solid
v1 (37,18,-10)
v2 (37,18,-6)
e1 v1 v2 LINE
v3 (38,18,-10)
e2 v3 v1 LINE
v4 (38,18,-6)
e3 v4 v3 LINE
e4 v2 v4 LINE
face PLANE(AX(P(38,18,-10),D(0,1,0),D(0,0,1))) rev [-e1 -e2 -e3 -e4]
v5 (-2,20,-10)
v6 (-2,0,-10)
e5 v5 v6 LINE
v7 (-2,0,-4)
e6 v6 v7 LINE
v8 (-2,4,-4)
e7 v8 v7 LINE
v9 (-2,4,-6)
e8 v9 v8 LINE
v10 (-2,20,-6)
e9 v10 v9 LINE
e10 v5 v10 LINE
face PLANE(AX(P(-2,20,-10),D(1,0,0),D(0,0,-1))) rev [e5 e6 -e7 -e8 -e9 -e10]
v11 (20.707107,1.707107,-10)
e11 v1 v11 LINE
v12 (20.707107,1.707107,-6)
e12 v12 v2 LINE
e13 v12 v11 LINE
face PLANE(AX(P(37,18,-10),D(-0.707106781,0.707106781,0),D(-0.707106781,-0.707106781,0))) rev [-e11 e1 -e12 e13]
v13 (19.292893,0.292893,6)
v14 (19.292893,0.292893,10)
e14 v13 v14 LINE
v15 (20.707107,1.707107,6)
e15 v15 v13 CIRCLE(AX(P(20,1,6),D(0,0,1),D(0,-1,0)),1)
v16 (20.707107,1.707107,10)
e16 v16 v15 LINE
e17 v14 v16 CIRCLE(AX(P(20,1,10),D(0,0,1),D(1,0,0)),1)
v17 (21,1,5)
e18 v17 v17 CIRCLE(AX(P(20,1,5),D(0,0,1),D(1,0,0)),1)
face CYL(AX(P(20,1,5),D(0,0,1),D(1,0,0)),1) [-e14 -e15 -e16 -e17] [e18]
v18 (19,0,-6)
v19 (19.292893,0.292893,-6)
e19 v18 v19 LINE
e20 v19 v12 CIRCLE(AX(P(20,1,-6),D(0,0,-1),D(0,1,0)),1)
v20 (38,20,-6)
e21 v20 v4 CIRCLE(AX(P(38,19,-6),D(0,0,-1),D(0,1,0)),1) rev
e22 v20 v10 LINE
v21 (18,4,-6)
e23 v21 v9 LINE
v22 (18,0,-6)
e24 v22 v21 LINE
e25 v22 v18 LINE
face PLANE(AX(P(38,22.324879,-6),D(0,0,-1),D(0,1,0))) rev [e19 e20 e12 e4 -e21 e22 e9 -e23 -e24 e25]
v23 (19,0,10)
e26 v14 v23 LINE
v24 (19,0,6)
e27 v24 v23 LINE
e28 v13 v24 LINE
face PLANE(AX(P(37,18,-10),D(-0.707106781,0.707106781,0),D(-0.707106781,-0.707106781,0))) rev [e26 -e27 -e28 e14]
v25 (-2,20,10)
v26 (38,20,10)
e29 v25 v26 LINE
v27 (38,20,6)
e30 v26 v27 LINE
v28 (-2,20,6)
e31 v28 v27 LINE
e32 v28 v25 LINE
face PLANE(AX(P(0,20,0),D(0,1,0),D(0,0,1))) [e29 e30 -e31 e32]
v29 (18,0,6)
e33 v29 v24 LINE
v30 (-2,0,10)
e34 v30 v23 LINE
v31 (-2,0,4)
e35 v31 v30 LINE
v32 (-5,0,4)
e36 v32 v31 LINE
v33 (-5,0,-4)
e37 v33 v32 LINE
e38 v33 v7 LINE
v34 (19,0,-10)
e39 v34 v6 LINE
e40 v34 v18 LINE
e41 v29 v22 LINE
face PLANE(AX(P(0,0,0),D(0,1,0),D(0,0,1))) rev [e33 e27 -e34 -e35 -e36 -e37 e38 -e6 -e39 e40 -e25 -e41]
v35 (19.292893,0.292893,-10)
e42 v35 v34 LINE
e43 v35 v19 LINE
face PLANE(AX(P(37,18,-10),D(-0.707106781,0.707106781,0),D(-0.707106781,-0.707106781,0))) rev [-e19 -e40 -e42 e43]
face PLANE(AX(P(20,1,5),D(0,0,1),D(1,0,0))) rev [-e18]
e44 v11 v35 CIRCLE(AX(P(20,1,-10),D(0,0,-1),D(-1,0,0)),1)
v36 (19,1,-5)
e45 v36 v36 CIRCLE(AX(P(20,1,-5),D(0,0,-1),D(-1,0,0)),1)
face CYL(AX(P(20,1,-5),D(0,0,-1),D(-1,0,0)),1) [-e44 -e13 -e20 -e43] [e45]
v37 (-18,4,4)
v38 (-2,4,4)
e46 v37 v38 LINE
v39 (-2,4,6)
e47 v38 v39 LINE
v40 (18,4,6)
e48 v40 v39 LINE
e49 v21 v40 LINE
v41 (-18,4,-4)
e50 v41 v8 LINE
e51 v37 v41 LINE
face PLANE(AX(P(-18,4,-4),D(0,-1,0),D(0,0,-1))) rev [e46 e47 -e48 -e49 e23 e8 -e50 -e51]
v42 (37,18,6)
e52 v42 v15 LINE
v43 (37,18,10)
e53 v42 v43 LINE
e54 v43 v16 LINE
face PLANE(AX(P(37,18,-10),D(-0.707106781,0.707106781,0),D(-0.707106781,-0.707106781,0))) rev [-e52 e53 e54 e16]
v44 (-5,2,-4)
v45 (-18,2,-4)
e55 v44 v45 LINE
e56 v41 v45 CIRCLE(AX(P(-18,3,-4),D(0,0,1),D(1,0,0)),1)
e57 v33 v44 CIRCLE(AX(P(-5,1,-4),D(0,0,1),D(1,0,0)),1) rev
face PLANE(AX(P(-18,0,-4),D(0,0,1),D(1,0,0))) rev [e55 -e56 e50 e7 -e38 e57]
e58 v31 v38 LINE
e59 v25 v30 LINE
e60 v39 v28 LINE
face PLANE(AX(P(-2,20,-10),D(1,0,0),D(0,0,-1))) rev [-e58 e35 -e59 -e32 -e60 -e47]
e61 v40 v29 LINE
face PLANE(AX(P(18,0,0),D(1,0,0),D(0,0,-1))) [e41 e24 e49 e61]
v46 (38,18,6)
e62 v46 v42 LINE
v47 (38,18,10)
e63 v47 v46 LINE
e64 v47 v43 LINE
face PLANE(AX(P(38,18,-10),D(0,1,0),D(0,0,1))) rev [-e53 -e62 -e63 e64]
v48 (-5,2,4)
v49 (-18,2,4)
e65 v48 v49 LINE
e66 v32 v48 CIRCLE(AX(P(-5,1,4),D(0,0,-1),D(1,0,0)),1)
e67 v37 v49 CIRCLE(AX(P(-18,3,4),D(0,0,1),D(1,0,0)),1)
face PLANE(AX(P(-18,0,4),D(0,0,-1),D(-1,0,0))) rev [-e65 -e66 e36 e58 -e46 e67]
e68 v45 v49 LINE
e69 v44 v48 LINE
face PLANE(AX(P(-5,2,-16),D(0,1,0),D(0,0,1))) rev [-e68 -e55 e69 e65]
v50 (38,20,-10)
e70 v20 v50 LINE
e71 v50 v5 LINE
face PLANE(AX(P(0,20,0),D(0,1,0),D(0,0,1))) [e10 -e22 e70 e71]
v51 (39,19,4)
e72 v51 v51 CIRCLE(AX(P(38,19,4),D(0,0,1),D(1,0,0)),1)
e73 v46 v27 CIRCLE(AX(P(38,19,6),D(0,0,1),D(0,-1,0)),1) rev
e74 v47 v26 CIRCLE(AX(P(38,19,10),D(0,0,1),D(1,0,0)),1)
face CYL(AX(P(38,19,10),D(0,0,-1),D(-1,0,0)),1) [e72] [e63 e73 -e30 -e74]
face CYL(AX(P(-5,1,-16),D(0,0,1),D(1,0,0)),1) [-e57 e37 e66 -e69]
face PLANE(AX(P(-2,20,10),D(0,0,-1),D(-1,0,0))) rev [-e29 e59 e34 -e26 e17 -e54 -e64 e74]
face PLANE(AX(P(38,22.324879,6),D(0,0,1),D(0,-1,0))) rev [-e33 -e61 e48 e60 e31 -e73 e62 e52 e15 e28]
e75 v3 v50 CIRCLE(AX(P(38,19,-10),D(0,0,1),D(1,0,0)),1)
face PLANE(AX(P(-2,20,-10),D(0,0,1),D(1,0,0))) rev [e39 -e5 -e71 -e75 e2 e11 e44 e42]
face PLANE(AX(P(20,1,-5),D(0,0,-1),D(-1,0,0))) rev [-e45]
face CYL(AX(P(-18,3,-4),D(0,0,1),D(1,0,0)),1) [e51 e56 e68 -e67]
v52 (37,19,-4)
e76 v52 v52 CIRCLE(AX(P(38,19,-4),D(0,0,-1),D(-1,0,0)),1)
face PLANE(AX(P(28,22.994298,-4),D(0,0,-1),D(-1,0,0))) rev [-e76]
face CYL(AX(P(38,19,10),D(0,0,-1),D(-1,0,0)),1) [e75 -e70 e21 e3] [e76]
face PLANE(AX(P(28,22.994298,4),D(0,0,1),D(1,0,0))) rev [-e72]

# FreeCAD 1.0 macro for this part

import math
import FreeCAD as App
import Part
import Sketcher
Q = App.Units.Quantity

doc = App.newDocument("Part")
body = doc.addObject("PartDesign::Body", "Body")

# Sketch on XZ plane
sketch1 = body.newObject("Sketcher::SketchObject", "Sketch")
sketch1.AttachmentSupport = (doc.getObject("XZ_Plane"), [""])
sketch1.MapMode = "FlatFace"
sketch1.addGeometry([
    Part.LineSegment(App.Vector(-2, -10, 0), App.Vector(-2, 10, 0)),
    Part.LineSegment(App.Vector(-2, 10, 0), App.Vector(38, 10, 0)),
    Part.LineSegment(App.Vector(38, 10, 0), App.Vector(38, -10, 0)),
    Part.LineSegment(App.Vector(38, -10, 0), App.Vector(-2, -10, 0)),
], False)
sketch1.addConstraint([
    Sketcher.Constraint("Coincident", 0, 2, 1, 1),
    Sketcher.Constraint("Coincident", 1, 2, 2, 1),
    Sketcher.Constraint("Coincident", 2, 2, 3, 1),
    Sketcher.Constraint("Coincident", 3, 2, 0, 1),
    Sketcher.Constraint("Vertical", 0),
    Sketcher.Constraint("Horizontal", 1),
    Sketcher.Constraint("Vertical", 2),
    Sketcher.Constraint("Horizontal", 3),
    Sketcher.Constraint("DistanceX", 1, 1, 1, 2, 40.0),
    Sketcher.Constraint("DistanceY", 0, 1, 0, 2, 20.0),
    Sketcher.Constraint("DistanceX", 0, 2, -1, 1, 2.0),
    Sketcher.Constraint("DistanceY", -1, 1, 0, 2, 10.0),
])
pad1 = body.newObject("PartDesign::Pad", "Pad")
pad1.Profile = sketch1
pad1.Length = 20
pad1.Reversed = True

# Sketch on YZ plane
sketch2 = body.newObject("Sketcher::SketchObject", "Sketch001")
sketch2.AttachmentSupport = (doc.getObject("YZ_Plane"), [""])
sketch2.MapMode = "FlatFace"
sketch2.AttachmentOffset = App.Placement(App.Vector(0, 0, -2), App.Rotation())
sketch2.addGeometry([
    Part.LineSegment(App.Vector(4, -4, 0), App.Vector(0, -4, 0)),
    Part.LineSegment(App.Vector(0, -4, 0), App.Vector(0, 4, 0)),
    Part.LineSegment(App.Vector(0, 4, 0), App.Vector(4, 4, 0)),
    Part.LineSegment(App.Vector(4, 4, 0), App.Vector(4, -4, 0)),
], False)
sketch2.addConstraint([
    Sketcher.Constraint("Coincident", 0, 2, 1, 1),
    Sketcher.Constraint("Coincident", 1, 2, 2, 1),
    Sketcher.Constraint("Coincident", 2, 2, 3, 1),
    Sketcher.Constraint("Coincident", 3, 2, 0, 1),
    Sketcher.Constraint("Horizontal", 0),
    Sketcher.Constraint("Vertical", 1),
    Sketcher.Constraint("Horizontal", 2),
    Sketcher.Constraint("Vertical", 3),
    Sketcher.Constraint("Symmetric", 0, 2, 1, 2, -1, 1),
    Sketcher.Constraint("DistanceX", 0, 2, 0, 1, 4.0),
    Sketcher.Constraint("DistanceY", 1, 1, 1, 2, 8.0),
])
pad2 = body.newObject("PartDesign::Pad", "Pad001")
pad2.Profile = sketch2
pad2.Length = 16
pad2.Reversed = True

# Sketch on YZ plane
sketch3 = body.newObject("Sketcher::SketchObject", "Sketch002")
sketch3.AttachmentSupport = (doc.getObject("YZ_Plane"), [""])
sketch3.MapMode = "FlatFace"
sketch3.AttachmentOffset = App.Placement(App.Vector(0, 0, -2), App.Rotation())
sketch3.addGeometry([
    Part.LineSegment(App.Vector(22, -6, 0), App.Vector(4, -6, 0)),
    Part.LineSegment(App.Vector(4, -6, 0), App.Vector(4, 6, 0)),
    Part.LineSegment(App.Vector(4, 6, 0), App.Vector(22, 6, 0)),
    Part.LineSegment(App.Vector(22, 6, 0), App.Vector(22, -6, 0)),
], False)
sketch3.addConstraint([
    Sketcher.Constraint("Coincident", 0, 2, 1, 1),
    Sketcher.Constraint("Coincident", 1, 2, 2, 1),
    Sketcher.Constraint("Coincident", 2, 2, 3, 1),
    Sketcher.Constraint("Coincident", 3, 2, 0, 1),
    Sketcher.Constraint("Horizontal", 0),
    Sketcher.Constraint("Vertical", 1),
    Sketcher.Constraint("Horizontal", 2),
    Sketcher.Constraint("Vertical", 3),
    Sketcher.Constraint("DistanceY", 1, 1, 1, 2, 12.0),
    Sketcher.Constraint("DistanceX", -1, 1, 0, 2, 4.0),
    Sketcher.Constraint("DistanceY", 0, 2, -1, 1, 6.0),
    Sketcher.Constraint("DistanceX", 0, 2, 0, 1, 18.324879),
])
pocket1 = body.newObject("PartDesign::Pocket", "Pocket")
pocket1.Profile = sketch3
pocket1.Type = "ThroughAll"
pocket1.Reversed = True

# Sketch on YZ plane
sketch4 = body.newObject("Sketcher::SketchObject", "Sketch003")
sketch4.AttachmentSupport = (doc.getObject("YZ_Plane"), [""])
sketch4.MapMode = "FlatFace"
sketch4.AttachmentOffset = App.Placement(App.Vector(0, 0, 38), App.Rotation())
sketch4.addGeometry([
    Part.LineSegment(App.Vector(4, 6, 0), App.Vector(0, 6, 0)),
    Part.LineSegment(App.Vector(0, 6, 0), App.Vector(0, -6, 0)),
    Part.LineSegment(App.Vector(0, -6, 0), App.Vector(4, -6, 0)),
    Part.LineSegment(App.Vector(4, -6, 0), App.Vector(4, 6, 0)),
], False)
sketch4.addConstraint([
    Sketcher.Constraint("Coincident", 0, 2, 1, 1),
    Sketcher.Constraint("Coincident", 1, 2, 2, 1),
    Sketcher.Constraint("Coincident", 2, 2, 3, 1),
    Sketcher.Constraint("Coincident", 3, 2, 0, 1),
    Sketcher.Constraint("Horizontal", 0),
    Sketcher.Constraint("Vertical", 1),
    Sketcher.Constraint("Horizontal", 2),
    Sketcher.Constraint("Vertical", 3),
    Sketcher.Constraint("Symmetric", 0, 2, 1, 2, -1, 1),
    Sketcher.Constraint("DistanceX", 0, 2, 0, 1, 4.0),
    Sketcher.Constraint("DistanceY", 1, 2, 1, 1, 12.0),
])
pocket2 = body.newObject("PartDesign::Pocket", "Pocket001")
pocket2.Profile = sketch4
pocket2.Length = 20

# Sketch on XY plane
sketch5 = body.newObject("Sketcher::SketchObject", "Sketch004")
sketch5.AttachmentSupport = (doc.getObject("XY_Plane"), [""])
sketch5.MapMode = "FlatFace"
sketch5.addGeometry([
    Part.Circle(App.Vector(38, 19, 0), App.Vector(0, 0, 1), 1),
    Part.Circle(App.Vector(38, 1, 0), App.Vector(0, 0, 1), 1),
], False)
sketch5.addConstraint([
    Sketcher.Constraint("Equal", 0, 1),
    Sketcher.Constraint("Vertical", 0, 3, 1, 3),
    Sketcher.Constraint("Diameter", 0, 2.0),
    Sketcher.Constraint("DistanceX", -1, 1, 0, 3, 38.0),
    Sketcher.Constraint("DistanceY", -1, 1, 0, 3, 19.0),
    Sketcher.Constraint("DistanceY", -1, 1, 1, 3, 1.0),
])
pad3 = body.newObject("PartDesign::Pad", "Pad002")
pad3.Profile = sketch5
pad3.Length = 20
pad3.Midplane = True

# Sketch on YZ plane
sketch6 = body.newObject("Sketcher::SketchObject", "Sketch005")
sketch6.AttachmentSupport = (doc.getObject("YZ_Plane"), [""])
sketch6.MapMode = "FlatFace"
sketch6.AttachmentOffset = App.Placement(App.Vector(0, 0, 38), App.Rotation())
sketch6.addGeometry([
    Part.LineSegment(App.Vector(23, 4, 0), App.Vector(-2, 4, 0)),
    Part.LineSegment(App.Vector(-2, 4, 0), App.Vector(-2, -4, 0)),
    Part.LineSegment(App.Vector(-2, -4, 0), App.Vector(23, -4, 0)),
    Part.LineSegment(App.Vector(23, -4, 0), App.Vector(23, 4, 0)),
], False)
sketch6.addConstraint([
    Sketcher.Constraint("Coincident", 0, 2, 1, 1),
    Sketcher.Constraint("Coincident", 1, 2, 2, 1),
    Sketcher.Constraint("Coincident", 2, 2, 3, 1),
    Sketcher.Constraint("Coincident", 3, 2, 0, 1),
    Sketcher.Constraint("Horizontal", 0),
    Sketcher.Constraint("Vertical", 1),
    Sketcher.Constraint("Horizontal", 2),
    Sketcher.Constraint("Vertical", 3),
    Sketcher.Constraint("DistanceY", 1, 2, 1, 1, 8.0),
    Sketcher.Constraint("DistanceY", -1, 1, 0, 2, 4.0),
    Sketcher.Constraint("DistanceX", 0, 2, 0, 1, 25.038569),
    Sketcher.Constraint("DistanceX", 0, 2, -1, 1, 2.044271),
])
pocket3 = body.newObject("PartDesign::Pocket", "Pocket002")
pocket3.Profile = sketch6
pocket3.Length = 20
pocket3.Midplane = True

# Sketch on XY plane
sketch7 = body.newObject("Sketcher::SketchObject", "Sketch006")
sketch7.AttachmentSupport = (doc.getObject("XY_Plane"), [""])
sketch7.MapMode = "FlatFace"
sketch7.AttachmentOffset = App.Placement(App.Vector(0, 0, 4), App.Rotation())
sketch7.addGeometry([
    Part.LineSegment(App.Vector(-5, 2, 0), App.Vector(-18.5, 2, 0)),
    Part.LineSegment(App.Vector(-18.5, 2, 0), App.Vector(-18.5, 0, 0)),
    Part.LineSegment(App.Vector(-18.5, 0, 0), App.Vector(-5, 0, 0)),
    Part.ArcOfCircle(Part.Circle(App.Vector(-5, 1, 0), App.Vector(0, 0, 1), 1), math.radians(90), math.radians(270)),
], False)
sketch7.addConstraint([
    Sketcher.Constraint("Coincident", 0, 2, 1, 1),
    Sketcher.Constraint("Coincident", 1, 2, 2, 1),
    Sketcher.Constraint("Tangent", 2, 2, 3, 2),
    Sketcher.Constraint("Tangent", 3, 1, 0, 1),
    Sketcher.Constraint("Horizontal", 0),
    Sketcher.Constraint("Vertical", 1),
    Sketcher.Constraint("Horizontal", 2),
    Sketcher.Constraint("PointOnObject", 1, 2, -1),
    Sketcher.Constraint("Radius", 3, 1.0),
    Sketcher.Constraint("DistanceX", 3, 3, -1, 1, 5.0),
    Sketcher.Constraint("DistanceX", 0, 2, 0, 1, 13.474771),
])
pocket4 = body.newObject("PartDesign::Pocket", "Pocket003")
pocket4.Profile = sketch7
pocket4.Length = 20

# Sketch on XY plane
sketch8 = body.newObject("Sketcher::SketchObject", "Sketch007")
sketch8.AttachmentSupport = (doc.getObject("XY_Plane"), [""])
sketch8.MapMode = "FlatFace"
sketch8.AttachmentOffset = App.Placement(App.Vector(0, 0, 4), App.Rotation())
sketch8.addGeometry(Part.Circle(App.Vector(-18, 3, 0), App.Vector(0, 0, 1), 1), False)
sketch8.addConstraint([
    Sketcher.Constraint("Diameter", 0, 2.0),
    Sketcher.Constraint("DistanceX", 0, 3, -1, 1, 18.0),
    Sketcher.Constraint("DistanceY", -1, 1, 0, 3, 3.0),
])
pad4 = body.newObject("PartDesign::Pad", "Pad003")
pad4.Profile = sketch8
pad4.Length = 8
pad4.Reversed = True

# Sketch on XY plane
sketch9 = body.newObject("Sketcher::SketchObject", "Sketch008")
sketch9.AttachmentSupport = (doc.getObject("XY_Plane"), [""])
sketch9.MapMode = "FlatFace"
sketch9.AttachmentOffset = App.Placement(App.Vector(0, 0, 10), App.Rotation())
sketch9.addGeometry([
    Part.LineSegment(App.Vector(19, 0, 0), App.Vector(39.9, 0, 0)),
    Part.LineSegment(App.Vector(39.9, 0, 0), App.Vector(38, 18, 0)),
    Part.LineSegment(App.Vector(38, 18, 0), App.Vector(37, 18, 0)),
    Part.LineSegment(App.Vector(37, 18, 0), App.Vector(19, 0, 0)),
], False)
sketch9.addConstraint([
    Sketcher.Constraint("Coincident", 0, 2, 1, 1),
    Sketcher.Constraint("Coincident", 1, 2, 2, 1),
    Sketcher.Constraint("Coincident", 2, 2, 3, 1),
    Sketcher.Constraint("Coincident", 3, 2, 0, 1),
    Sketcher.Constraint("Horizontal", 0),
    Sketcher.Constraint("Horizontal", 2),
    Sketcher.Constraint("PointOnObject", 0, 2, -1),
    Sketcher.Constraint("DistanceX", 2, 2, 2, 1, 1.0),
    Sketcher.Constraint("Angle", 3, Q("-135 deg")),
    Sketcher.Constraint("DistanceX", -1, 1, 1, 2, 38.0),
    Sketcher.Constraint("DistanceY", -1, 1, 1, 2, 18.0),
    Sketcher.Constraint("DistanceX", 0, 1, 0, 2, 20.887995),
])
pocket5 = body.newObject("PartDesign::Pocket", "Pocket004")
pocket5.Profile = sketch9
pocket5.Length = 20

# Sketch on XY plane
sketch10 = body.newObject("Sketcher::SketchObject", "Sketch009")
sketch10.AttachmentSupport = (doc.getObject("XY_Plane"), [""])
sketch10.MapMode = "FlatFace"
sketch10.AttachmentOffset = App.Placement(App.Vector(0, 0, 10), App.Rotation())
sketch10.addGeometry(Part.Circle(App.Vector(20, 1, 0), App.Vector(0, 0, 1), 1), False)
sketch10.addConstraint([
    Sketcher.Constraint("Diameter", 0, 2.0),
    Sketcher.Constraint("DistanceX", -1, 1, 0, 3, 20.0),
    Sketcher.Constraint("DistanceY", -1, 1, 0, 3, 1.0),
])
pad5 = body.newObject("PartDesign::Pad", "Pad004")
pad5.Profile = sketch10
pad5.Length = 5
pad5.Reversed = True

# Sketch on XY plane
sketch11 = body.newObject("Sketcher::SketchObject", "Sketch010")
sketch11.AttachmentSupport = (doc.getObject("XY_Plane"), [""])
sketch11.MapMode = "FlatFace"
sketch11.AttachmentOffset = App.Placement(App.Vector(0, 0, -10), App.Rotation())
sketch11.addGeometry(Part.Circle(App.Vector(20, 1, 0), App.Vector(0, 0, 1), 1), False)
sketch11.addConstraint([
    Sketcher.Constraint("Diameter", 0, 2.0),
    Sketcher.Constraint("DistanceX", -1, 1, 0, 3, 20.0),
    Sketcher.Constraint("DistanceY", -1, 1, 0, 3, 1.0),
])
pad6 = body.newObject("PartDesign::Pad", "Pad005")
pad6.Profile = sketch11
pad6.Length = 5

doc.recompute()
